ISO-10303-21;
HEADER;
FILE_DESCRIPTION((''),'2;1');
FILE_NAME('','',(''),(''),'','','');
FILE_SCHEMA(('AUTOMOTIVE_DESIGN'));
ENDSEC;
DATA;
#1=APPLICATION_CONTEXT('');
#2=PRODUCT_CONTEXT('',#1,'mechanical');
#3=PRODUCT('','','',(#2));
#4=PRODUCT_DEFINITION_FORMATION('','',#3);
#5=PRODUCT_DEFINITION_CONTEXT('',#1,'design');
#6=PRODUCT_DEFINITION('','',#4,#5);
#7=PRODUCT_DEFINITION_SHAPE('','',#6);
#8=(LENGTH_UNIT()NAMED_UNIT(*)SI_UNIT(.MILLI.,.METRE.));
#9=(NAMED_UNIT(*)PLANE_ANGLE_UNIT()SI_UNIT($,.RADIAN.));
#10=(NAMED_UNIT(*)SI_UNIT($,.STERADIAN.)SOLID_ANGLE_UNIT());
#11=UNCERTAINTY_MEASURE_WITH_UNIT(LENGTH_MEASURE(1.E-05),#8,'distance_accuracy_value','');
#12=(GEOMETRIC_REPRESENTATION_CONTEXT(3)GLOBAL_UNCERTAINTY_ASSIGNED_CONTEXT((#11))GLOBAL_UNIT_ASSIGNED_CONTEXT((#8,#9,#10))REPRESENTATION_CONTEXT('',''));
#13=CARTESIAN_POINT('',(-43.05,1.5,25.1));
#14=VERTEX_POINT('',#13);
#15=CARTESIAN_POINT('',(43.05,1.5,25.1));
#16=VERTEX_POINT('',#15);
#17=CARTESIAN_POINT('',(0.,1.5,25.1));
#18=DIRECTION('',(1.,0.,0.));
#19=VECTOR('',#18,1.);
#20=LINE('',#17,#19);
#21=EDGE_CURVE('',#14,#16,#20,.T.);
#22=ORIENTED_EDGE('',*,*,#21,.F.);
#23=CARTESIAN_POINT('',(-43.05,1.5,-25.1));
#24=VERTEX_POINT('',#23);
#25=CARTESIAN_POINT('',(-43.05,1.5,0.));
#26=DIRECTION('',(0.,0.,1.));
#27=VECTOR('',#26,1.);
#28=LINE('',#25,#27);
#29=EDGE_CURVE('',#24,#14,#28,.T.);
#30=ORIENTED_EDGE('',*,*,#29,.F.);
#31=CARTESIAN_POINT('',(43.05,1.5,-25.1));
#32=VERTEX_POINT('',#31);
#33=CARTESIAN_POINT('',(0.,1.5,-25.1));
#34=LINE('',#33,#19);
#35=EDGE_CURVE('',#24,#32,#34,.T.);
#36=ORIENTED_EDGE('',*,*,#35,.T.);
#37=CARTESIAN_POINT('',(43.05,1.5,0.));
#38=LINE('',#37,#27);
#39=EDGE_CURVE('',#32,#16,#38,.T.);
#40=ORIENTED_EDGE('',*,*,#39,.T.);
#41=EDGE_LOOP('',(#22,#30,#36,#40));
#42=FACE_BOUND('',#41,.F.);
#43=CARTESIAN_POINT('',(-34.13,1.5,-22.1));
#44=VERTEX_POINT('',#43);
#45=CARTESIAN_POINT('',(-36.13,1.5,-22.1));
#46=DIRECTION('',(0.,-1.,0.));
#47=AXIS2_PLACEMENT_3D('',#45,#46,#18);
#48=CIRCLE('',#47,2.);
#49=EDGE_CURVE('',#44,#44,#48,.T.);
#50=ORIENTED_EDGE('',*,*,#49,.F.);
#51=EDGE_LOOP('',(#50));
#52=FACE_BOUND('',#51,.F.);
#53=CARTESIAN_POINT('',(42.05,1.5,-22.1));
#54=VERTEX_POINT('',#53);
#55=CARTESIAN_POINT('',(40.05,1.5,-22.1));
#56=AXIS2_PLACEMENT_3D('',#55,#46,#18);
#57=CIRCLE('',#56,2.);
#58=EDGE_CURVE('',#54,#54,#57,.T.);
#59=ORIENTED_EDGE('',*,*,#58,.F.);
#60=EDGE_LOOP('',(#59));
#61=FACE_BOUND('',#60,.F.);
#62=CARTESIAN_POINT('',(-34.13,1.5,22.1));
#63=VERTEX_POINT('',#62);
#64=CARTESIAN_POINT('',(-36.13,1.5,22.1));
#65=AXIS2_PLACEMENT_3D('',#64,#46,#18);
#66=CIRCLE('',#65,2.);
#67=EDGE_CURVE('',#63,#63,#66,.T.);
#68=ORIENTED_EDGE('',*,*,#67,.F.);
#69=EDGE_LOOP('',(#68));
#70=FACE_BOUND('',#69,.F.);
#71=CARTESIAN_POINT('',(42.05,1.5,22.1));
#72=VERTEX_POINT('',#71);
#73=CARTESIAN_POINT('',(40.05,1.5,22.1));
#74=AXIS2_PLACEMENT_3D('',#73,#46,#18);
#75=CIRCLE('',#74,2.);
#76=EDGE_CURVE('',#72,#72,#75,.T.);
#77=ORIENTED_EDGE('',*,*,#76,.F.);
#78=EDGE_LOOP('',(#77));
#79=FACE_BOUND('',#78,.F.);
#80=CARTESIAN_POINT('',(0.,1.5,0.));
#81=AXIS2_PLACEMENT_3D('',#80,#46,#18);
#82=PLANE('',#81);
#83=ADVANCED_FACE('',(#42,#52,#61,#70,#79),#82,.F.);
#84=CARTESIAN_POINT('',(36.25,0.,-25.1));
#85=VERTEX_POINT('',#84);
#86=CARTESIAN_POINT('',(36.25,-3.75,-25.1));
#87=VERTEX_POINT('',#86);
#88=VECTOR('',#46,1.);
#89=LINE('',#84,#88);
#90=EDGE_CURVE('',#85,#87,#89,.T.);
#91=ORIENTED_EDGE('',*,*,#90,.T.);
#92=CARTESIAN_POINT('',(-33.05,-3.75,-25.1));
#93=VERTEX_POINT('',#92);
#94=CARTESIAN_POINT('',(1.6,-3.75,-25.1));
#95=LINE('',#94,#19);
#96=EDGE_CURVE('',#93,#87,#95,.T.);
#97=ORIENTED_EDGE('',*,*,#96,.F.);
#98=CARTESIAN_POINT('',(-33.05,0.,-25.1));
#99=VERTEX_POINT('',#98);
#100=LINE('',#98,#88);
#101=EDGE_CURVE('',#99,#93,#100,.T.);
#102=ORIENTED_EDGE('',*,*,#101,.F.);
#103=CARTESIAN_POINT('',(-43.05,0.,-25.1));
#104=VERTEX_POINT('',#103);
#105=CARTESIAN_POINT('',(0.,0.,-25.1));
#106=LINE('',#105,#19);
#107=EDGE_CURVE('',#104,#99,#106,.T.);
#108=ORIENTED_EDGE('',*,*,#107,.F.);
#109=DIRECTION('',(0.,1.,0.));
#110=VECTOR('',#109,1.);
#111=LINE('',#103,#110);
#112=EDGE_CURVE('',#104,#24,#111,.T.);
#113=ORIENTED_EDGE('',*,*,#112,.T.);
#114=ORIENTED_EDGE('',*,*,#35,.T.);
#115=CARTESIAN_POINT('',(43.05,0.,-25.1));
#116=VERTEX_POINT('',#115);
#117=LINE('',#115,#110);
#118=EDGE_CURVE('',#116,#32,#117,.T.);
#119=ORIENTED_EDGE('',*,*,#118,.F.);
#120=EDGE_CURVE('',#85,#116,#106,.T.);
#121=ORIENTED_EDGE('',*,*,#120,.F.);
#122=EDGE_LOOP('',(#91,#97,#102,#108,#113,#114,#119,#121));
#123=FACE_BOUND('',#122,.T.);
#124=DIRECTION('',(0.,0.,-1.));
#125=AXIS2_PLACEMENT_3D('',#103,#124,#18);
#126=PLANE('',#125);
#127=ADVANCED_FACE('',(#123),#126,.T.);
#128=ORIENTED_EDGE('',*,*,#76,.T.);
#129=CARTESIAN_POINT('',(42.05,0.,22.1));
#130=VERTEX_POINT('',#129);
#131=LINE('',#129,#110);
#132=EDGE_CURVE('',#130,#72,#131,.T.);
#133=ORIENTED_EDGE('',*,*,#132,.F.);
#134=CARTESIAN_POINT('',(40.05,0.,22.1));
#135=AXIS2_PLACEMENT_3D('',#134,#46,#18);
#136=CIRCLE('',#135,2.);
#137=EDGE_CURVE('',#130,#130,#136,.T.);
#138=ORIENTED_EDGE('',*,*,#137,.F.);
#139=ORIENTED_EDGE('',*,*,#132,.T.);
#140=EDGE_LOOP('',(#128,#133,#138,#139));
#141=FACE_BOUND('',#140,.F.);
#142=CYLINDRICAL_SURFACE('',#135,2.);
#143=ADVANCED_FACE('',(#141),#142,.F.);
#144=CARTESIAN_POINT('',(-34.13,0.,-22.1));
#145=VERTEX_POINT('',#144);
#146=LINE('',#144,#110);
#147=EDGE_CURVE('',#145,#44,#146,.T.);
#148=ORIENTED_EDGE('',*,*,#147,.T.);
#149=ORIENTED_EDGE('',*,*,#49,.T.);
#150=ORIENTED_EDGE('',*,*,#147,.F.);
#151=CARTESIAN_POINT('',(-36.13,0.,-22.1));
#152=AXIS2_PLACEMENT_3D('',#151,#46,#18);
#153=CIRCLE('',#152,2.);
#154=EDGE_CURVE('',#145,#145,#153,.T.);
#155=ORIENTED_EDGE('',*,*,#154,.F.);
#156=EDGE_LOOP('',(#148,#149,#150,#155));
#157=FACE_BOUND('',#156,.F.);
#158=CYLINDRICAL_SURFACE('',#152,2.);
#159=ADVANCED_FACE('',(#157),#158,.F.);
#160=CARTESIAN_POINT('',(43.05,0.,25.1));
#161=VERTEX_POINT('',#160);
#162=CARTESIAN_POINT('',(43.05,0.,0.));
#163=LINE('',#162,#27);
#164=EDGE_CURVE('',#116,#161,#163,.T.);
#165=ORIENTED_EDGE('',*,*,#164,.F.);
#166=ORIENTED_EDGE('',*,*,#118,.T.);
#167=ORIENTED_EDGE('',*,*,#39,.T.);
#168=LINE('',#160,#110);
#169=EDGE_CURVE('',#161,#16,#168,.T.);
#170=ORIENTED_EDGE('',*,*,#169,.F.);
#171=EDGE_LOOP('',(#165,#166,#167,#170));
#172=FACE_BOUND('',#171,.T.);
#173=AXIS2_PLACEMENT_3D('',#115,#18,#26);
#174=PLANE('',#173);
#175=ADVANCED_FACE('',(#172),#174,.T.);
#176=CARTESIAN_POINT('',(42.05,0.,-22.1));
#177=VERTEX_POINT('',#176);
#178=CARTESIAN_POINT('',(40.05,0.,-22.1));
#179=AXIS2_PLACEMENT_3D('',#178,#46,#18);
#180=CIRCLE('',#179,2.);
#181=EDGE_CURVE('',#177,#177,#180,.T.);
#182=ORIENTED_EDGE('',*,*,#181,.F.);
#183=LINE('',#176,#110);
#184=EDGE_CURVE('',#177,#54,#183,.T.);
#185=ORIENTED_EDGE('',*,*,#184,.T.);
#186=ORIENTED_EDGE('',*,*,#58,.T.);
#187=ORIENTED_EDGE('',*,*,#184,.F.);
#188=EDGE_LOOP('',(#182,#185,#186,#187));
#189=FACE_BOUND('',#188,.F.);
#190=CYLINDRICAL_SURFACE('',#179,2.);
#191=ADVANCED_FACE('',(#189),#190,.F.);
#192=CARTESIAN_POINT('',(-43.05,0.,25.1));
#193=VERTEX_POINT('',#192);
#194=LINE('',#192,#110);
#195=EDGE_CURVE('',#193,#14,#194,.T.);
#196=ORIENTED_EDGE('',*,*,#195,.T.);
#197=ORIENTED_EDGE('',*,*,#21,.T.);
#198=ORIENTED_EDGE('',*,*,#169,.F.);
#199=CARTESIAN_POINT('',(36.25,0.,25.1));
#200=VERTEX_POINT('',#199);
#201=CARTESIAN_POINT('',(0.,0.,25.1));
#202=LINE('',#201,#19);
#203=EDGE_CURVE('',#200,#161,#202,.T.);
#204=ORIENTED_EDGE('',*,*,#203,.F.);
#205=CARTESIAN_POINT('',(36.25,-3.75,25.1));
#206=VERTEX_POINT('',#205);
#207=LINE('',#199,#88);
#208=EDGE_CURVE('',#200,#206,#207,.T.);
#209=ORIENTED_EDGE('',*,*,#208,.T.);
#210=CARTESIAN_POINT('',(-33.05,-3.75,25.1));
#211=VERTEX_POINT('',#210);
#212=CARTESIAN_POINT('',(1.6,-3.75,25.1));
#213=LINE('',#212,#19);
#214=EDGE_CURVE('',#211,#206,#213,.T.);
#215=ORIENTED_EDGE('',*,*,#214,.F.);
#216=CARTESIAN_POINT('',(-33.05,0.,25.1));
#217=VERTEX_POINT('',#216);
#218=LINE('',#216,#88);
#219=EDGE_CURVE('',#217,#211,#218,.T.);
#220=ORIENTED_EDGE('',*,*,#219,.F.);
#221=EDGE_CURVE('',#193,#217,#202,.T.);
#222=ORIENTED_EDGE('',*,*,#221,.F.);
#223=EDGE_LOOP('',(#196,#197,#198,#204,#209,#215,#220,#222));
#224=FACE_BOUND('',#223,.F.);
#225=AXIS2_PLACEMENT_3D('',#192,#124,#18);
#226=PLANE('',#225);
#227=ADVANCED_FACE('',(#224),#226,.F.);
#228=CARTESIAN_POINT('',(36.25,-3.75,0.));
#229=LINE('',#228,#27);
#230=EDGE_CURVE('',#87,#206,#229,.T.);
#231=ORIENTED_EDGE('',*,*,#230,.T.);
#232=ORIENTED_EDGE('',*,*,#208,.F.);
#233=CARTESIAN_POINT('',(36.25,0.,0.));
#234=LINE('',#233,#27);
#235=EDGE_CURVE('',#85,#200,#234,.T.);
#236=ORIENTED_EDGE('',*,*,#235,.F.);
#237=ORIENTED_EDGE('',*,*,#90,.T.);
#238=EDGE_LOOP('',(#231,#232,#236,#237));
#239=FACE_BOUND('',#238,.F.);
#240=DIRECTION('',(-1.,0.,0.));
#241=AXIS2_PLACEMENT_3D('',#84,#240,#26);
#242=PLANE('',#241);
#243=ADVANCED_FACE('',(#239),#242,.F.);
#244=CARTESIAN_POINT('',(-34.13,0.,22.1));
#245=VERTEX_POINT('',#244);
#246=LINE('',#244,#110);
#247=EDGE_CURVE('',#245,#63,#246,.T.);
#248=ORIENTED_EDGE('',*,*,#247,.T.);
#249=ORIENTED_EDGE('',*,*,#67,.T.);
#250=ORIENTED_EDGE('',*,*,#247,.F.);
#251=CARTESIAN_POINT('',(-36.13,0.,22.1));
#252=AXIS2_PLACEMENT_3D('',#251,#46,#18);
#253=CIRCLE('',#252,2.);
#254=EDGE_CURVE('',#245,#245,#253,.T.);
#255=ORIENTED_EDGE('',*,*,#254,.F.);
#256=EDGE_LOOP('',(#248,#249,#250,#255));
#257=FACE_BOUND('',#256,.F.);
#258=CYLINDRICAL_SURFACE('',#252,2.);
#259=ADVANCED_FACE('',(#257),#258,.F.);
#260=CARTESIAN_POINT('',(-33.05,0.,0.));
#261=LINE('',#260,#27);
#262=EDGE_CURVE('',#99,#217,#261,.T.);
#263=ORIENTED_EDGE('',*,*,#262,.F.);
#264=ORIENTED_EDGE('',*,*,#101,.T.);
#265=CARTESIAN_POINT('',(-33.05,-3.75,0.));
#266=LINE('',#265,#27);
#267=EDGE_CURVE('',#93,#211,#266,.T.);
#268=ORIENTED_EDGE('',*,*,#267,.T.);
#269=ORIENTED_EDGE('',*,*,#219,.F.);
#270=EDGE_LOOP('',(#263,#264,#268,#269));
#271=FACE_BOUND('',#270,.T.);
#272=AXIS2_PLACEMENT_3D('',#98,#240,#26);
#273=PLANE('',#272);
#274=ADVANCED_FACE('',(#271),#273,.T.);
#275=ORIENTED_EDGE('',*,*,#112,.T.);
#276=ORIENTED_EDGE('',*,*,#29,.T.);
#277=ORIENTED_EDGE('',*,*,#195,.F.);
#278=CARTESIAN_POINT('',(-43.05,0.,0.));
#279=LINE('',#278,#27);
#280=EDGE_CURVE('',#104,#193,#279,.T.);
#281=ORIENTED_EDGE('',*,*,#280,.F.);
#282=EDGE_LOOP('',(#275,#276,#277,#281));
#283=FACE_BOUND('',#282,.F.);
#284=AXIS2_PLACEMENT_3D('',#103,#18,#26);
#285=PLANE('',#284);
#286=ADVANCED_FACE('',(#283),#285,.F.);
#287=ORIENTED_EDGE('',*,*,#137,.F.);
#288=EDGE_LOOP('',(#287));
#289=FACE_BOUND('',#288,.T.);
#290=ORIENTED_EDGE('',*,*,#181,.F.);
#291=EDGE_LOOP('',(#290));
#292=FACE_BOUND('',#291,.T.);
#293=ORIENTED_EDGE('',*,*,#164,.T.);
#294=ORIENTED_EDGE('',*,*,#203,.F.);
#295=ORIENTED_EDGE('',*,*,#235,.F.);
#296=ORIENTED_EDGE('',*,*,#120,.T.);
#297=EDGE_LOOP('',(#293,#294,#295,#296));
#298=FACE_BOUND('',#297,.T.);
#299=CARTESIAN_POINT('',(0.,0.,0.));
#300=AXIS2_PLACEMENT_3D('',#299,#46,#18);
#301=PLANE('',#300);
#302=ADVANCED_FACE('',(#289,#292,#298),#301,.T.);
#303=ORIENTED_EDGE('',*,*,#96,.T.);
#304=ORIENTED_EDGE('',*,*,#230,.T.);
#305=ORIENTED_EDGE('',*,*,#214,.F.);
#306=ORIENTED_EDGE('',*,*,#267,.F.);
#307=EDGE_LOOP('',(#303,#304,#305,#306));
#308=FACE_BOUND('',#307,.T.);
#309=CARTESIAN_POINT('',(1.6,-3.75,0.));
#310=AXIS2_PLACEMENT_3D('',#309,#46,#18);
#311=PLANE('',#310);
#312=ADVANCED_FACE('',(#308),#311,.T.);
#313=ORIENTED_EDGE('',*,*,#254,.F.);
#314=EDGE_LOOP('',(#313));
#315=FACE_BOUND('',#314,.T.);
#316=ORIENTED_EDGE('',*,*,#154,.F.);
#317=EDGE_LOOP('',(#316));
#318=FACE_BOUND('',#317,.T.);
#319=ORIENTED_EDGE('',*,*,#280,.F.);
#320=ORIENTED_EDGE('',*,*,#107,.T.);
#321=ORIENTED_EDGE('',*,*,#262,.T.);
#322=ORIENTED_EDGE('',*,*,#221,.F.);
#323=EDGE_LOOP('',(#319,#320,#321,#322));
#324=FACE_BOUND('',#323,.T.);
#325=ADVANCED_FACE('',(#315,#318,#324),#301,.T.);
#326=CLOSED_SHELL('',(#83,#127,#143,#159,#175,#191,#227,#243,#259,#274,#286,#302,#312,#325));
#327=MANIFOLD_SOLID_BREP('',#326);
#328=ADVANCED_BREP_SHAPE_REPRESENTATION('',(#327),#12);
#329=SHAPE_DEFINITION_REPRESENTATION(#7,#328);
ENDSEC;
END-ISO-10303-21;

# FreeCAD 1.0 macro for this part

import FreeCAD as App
import Part
import Sketcher

V = App.Vector

doc = App.newDocument("Part")
body = doc.addObject("PartDesign::Body", "Body")

sketch1 = body.newObject("Sketcher::SketchObject", "Sketch")
sketch1.AttachmentSupport = (doc.getObject("XZ_Plane"), [""])
sketch1.MapMode = "FlatFace"
sketch1.addGeometry(Part.LineSegment(V(-43, 25, 0), V(-43, -25, 0)), False)
sketch1.addGeometry(Part.LineSegment(V(-43, -25, 0), V(43, -25, 0)), False)
sketch1.addGeometry(Part.LineSegment(V(43, -25, 0), V(43, 25, 0)), False)
sketch1.addGeometry(Part.LineSegment(V(43, 25, 0), V(-43, 25, 0)), False)
sketch1.addConstraint(Sketcher.Constraint("Coincident", 0, 2, 1, 1))
sketch1.addConstraint(Sketcher.Constraint("Coincident", 1, 2, 2, 1))
sketch1.addConstraint(Sketcher.Constraint("Coincident", 2, 2, 3, 1))
sketch1.addConstraint(Sketcher.Constraint("Coincident", 3, 2, 0, 1))
sketch1.addConstraint(Sketcher.Constraint("Vertical", 0))
sketch1.addConstraint(Sketcher.Constraint("Horizontal", 1))
sketch1.addConstraint(Sketcher.Constraint("Vertical", 2))
sketch1.addConstraint(Sketcher.Constraint("Horizontal", 3))
sketch1.addConstraint(Sketcher.Constraint("Symmetric", 0, 2, 2, 2, -1, 1))
sketch1.addConstraint(Sketcher.Constraint("DistanceX", 1, 1, 1, 2, 86.1))
sketch1.addConstraint(Sketcher.Constraint("DistanceY", 0, 2, 0, 1, 50.2))
pad1 = body.newObject("PartDesign::Pad", "Pad")
pad1.Profile = sketch1
pad1.Length = 1.5
pad1.Reversed = True

sketch2 = body.newObject("Sketcher::SketchObject", "Sketch001")
sketch2.AttachmentSupport = (doc.getObject("XZ_Plane"), [""])
sketch2.MapMode = "FlatFace"
sketch2.addGeometry(Part.LineSegment(V(-33, 25, 0), V(-33, -25, 0)), False)
sketch2.addGeometry(Part.LineSegment(V(-33, -25, 0), V(36, -25, 0)), False)
sketch2.addGeometry(Part.LineSegment(V(36, -25, 0), V(36, 25, 0)), False)
sketch2.addGeometry(Part.LineSegment(V(36, 25, 0), V(-33, 25, 0)), False)
sketch2.addConstraint(Sketcher.Constraint("Coincident", 0, 2, 1, 1))
sketch2.addConstraint(Sketcher.Constraint("Coincident", 1, 2, 2, 1))
sketch2.addConstraint(Sketcher.Constraint("Coincident", 2, 2, 3, 1))
sketch2.addConstraint(Sketcher.Constraint("Coincident", 3, 2, 0, 1))
sketch2.addConstraint(Sketcher.Constraint("Vertical", 0))
sketch2.addConstraint(Sketcher.Constraint("Horizontal", 1))
sketch2.addConstraint(Sketcher.Constraint("Vertical", 2))
sketch2.addConstraint(Sketcher.Constraint("Horizontal", 3))
sketch2.addConstraint(Sketcher.Constraint("DistanceX", 1, 1, 1, 2, 69.3))
sketch2.addConstraint(Sketcher.Constraint("DistanceY", 0, 2, 0, 1, 50.2))
sketch2.addConstraint(Sketcher.Constraint("DistanceY", 0, 2, -1, 1, 25.1))
sketch2.addConstraint(Sketcher.Constraint("DistanceX", 0, 2, -1, 1, 33.05))
pad2 = body.newObject("PartDesign::Pad", "Pad001")
pad2.Profile = sketch2
pad2.Length = 3.75

sketch3 = body.newObject("Sketcher::SketchObject", "Sketch002")
sketch3.AttachmentSupport = (doc.getObject("XZ_Plane"), [""])
sketch3.MapMode = "FlatFace"
sketch3.addGeometry(Part.Circle(V(-36.1, 22.1, 0), V(0, 0, 1), 2), False)
sketch3.addGeometry(Part.Circle(V(-36.1, -22.1, 0), V(0, 0, 1), 2), False)
sketch3.addGeometry(Part.Circle(V(40, 22.1, 0), V(0, 0, 1), 2), False)
sketch3.addGeometry(Part.Circle(V(40, -22.1, 0), V(0, 0, 1), 2), False)
sketch3.addConstraint(Sketcher.Constraint("Equal", 0, 1))
sketch3.addConstraint(Sketcher.Constraint("Equal", 1, 2))
sketch3.addConstraint(Sketcher.Constraint("Equal", 2, 3))
sketch3.addConstraint(Sketcher.Constraint("Symmetric", 0, 3, 1, 3, -1))
sketch3.addConstraint(Sketcher.Constraint("Symmetric", 2, 3, 3, 3, -1))
sketch3.addConstraint(Sketcher.Constraint("Horizontal", 0, 3, 2, 3))
sketch3.addConstraint(Sketcher.Constraint("Diameter", 0, 4.0))
sketch3.addConstraint(Sketcher.Constraint("DistanceY", -1, 1, 0, 3, 22.1))
sketch3.addConstraint(Sketcher.Constraint("DistanceX", 0, 3, -1, 1, 36.13))
sketch3.addConstraint(Sketcher.Constraint("DistanceX", -1, 1, 2, 3, 40.05))
pocket1 = body.newObject("PartDesign::Pocket", "Pocket")
pocket1.Profile = sketch3
pocket1.Type = "ThroughAll"

doc.recompute()
